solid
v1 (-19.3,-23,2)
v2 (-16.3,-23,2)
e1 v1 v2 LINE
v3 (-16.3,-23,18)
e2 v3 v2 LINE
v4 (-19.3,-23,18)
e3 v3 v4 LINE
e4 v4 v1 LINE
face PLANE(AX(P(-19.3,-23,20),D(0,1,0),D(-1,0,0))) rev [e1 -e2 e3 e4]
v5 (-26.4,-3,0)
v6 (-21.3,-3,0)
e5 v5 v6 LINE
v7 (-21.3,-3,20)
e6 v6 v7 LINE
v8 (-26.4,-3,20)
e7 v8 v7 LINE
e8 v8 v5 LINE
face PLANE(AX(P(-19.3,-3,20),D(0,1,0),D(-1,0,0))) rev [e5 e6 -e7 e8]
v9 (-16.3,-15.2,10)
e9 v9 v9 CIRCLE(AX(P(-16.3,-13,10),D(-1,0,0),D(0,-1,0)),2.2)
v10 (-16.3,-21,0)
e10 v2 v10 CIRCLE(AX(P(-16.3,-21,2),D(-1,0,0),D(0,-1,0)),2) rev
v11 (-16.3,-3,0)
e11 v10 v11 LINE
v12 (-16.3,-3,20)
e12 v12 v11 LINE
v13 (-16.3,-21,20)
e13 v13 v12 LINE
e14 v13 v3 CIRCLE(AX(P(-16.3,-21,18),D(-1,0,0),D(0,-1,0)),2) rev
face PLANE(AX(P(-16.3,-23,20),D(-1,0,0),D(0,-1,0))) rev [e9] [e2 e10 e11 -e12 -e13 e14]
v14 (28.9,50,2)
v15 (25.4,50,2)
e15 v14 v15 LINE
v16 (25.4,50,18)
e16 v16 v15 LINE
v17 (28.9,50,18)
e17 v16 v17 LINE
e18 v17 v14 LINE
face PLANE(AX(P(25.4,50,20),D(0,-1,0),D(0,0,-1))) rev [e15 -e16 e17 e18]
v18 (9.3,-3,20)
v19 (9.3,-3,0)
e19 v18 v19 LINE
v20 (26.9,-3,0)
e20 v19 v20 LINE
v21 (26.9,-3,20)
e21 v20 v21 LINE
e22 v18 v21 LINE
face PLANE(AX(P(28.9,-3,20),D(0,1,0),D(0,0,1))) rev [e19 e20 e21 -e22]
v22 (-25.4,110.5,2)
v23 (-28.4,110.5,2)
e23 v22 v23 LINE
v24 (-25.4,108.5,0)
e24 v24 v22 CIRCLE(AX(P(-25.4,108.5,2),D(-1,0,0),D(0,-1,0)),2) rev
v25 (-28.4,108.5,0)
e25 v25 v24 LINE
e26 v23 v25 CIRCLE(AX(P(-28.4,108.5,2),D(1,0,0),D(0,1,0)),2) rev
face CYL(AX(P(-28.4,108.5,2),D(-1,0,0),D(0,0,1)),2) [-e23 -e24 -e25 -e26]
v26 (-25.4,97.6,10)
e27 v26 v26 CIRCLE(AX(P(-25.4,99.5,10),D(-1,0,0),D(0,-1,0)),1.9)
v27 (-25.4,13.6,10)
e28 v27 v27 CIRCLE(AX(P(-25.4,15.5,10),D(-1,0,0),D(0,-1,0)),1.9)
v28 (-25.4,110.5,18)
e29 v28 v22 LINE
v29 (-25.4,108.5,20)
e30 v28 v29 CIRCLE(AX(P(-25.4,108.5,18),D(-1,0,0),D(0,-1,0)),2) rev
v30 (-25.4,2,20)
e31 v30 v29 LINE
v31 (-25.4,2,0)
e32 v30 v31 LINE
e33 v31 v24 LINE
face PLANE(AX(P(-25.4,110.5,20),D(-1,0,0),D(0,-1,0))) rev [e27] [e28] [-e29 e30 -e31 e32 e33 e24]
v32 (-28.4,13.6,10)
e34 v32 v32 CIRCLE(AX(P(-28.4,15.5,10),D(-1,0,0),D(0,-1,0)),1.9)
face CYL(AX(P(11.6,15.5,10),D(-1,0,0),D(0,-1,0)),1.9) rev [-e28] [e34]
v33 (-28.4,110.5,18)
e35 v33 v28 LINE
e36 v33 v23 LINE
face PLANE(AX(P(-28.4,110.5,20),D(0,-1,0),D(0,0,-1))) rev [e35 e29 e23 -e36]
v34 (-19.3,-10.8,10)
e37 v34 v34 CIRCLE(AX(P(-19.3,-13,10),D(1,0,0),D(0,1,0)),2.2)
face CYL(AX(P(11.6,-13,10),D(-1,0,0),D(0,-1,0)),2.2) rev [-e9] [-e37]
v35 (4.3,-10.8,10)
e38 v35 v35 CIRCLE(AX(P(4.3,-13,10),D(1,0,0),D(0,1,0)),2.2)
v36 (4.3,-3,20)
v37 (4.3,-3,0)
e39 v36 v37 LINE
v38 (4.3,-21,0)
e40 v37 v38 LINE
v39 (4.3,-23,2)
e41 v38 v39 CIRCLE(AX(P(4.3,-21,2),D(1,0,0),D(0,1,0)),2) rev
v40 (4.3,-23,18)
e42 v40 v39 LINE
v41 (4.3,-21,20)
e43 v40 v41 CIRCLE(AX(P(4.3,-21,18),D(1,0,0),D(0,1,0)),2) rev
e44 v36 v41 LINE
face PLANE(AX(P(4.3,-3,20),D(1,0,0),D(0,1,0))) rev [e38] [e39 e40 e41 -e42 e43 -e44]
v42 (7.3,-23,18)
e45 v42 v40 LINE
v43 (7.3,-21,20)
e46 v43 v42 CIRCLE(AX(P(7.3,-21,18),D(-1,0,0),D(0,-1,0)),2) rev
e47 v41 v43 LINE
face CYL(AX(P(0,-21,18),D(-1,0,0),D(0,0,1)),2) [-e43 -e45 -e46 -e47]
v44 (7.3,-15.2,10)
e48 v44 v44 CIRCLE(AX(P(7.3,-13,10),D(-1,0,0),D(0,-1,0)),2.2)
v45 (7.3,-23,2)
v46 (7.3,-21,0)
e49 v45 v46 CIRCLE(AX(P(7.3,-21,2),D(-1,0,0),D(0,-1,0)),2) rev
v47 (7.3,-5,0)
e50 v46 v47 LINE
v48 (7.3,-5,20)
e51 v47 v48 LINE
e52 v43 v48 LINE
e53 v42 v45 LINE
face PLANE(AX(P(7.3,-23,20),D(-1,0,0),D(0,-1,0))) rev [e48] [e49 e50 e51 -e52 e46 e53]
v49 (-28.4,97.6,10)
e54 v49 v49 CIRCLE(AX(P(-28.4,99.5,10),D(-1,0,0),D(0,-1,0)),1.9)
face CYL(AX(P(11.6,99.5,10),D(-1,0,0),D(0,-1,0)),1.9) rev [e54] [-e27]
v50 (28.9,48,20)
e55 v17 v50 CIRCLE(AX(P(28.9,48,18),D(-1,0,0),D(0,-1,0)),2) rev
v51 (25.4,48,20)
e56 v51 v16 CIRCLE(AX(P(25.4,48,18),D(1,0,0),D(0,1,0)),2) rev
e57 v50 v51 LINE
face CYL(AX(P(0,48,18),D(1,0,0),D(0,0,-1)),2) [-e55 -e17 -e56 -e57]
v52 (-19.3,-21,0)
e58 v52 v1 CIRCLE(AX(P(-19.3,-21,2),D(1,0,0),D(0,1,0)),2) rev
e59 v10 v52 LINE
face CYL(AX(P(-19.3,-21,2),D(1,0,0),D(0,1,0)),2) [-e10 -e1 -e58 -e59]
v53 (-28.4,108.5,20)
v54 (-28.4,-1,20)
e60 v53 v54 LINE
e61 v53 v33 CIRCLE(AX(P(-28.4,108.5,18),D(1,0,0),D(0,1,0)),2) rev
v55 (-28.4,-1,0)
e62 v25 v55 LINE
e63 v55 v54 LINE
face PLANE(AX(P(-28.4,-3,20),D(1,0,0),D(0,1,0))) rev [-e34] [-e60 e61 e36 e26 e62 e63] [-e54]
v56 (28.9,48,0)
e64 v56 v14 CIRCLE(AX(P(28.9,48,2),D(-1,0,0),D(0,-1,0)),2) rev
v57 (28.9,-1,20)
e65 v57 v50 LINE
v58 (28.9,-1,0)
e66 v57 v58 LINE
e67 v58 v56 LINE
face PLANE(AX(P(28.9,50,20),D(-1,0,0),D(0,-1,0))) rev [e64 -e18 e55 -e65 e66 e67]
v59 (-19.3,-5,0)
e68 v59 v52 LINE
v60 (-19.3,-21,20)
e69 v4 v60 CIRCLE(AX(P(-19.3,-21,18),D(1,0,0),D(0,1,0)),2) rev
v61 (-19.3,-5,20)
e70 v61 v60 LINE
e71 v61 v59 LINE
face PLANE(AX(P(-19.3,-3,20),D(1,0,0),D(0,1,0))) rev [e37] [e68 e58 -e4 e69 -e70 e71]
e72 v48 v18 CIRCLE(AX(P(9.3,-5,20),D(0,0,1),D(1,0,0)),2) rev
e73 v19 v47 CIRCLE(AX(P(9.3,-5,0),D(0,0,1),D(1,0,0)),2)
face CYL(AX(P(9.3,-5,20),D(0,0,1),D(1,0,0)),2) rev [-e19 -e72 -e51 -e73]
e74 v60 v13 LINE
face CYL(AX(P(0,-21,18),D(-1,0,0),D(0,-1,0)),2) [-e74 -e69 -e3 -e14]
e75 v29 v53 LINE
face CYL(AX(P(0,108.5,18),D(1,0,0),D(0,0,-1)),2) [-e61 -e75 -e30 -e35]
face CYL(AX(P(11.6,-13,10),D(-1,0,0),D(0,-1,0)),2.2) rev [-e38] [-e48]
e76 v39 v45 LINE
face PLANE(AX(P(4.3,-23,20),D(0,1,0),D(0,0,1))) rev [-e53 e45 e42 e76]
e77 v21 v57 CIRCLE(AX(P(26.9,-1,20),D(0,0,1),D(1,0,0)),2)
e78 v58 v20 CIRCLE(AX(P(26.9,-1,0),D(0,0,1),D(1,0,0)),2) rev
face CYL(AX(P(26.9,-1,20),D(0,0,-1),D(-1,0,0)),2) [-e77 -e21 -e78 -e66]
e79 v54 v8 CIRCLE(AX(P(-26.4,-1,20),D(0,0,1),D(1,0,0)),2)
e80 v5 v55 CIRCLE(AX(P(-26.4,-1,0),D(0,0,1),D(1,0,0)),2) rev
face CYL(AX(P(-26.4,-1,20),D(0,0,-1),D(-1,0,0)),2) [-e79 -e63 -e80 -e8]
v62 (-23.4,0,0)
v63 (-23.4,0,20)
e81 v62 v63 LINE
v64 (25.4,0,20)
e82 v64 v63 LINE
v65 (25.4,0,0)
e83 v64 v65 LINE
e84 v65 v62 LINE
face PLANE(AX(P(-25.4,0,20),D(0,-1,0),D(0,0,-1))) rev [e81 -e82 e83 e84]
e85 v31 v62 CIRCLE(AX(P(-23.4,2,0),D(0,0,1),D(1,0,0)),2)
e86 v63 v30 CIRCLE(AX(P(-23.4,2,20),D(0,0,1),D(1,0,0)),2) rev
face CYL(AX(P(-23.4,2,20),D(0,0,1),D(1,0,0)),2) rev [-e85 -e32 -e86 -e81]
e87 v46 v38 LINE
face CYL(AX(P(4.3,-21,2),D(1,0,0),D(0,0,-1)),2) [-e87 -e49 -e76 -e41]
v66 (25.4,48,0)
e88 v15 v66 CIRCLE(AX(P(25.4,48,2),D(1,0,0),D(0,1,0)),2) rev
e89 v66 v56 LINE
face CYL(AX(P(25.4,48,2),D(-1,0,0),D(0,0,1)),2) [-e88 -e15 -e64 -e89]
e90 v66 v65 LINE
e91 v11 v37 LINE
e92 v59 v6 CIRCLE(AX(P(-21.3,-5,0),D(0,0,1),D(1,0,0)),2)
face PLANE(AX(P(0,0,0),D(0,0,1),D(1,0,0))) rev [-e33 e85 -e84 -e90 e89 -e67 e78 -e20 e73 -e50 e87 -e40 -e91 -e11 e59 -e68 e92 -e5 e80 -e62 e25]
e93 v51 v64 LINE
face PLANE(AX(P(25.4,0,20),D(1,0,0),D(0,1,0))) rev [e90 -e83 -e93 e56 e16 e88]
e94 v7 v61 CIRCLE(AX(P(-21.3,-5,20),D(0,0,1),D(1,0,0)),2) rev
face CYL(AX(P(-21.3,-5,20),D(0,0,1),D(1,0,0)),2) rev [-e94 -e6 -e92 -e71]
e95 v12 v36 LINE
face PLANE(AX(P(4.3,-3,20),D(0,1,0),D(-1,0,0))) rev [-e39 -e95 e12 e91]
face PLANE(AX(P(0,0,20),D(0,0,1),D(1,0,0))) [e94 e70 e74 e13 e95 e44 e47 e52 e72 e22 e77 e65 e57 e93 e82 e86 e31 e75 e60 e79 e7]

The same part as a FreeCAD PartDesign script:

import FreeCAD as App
import Part
import Sketcher


def edges_at(feature, points):
    """Names of the edges that pass closest to the given points."""
    edges = feature.Shape.Edges
    near = lambda p: min(range(len(edges)), key=lambda i: edges[i].distToShape(Part.Vertex(*p))[0])
    return sorted({f"Edge{near(p) + 1}" for p in points})

doc = App.newDocument("Part")
body = doc.addObject("PartDesign::Body", "Body")

# Sketch on XY plane
sketch1 = body.newObject("Sketcher::SketchObject", "Sketch")
sketch1.AttachmentSupport = (doc.getObject("XY_Plane"), [""])
sketch1.MapMode = "FlatFace"
sketch1.addGeometry([
    Part.LineSegment(App.Vector(25.4, 0, 0), App.Vector(-25.4, 0, 0)),  # 0
    Part.LineSegment(App.Vector(-25.4, 0, 0), App.Vector(-25.4, 110.5, 0)),  # 1
    Part.LineSegment(App.Vector(-25.4, 110.5, 0), App.Vector(-28.4, 110.5, 0)),  # 2
    Part.LineSegment(App.Vector(-28.4, 110.5, 0), App.Vector(-28.4, -3, 0)),  # 3
    Part.LineSegment(App.Vector(-28.4, -3, 0), App.Vector(-19.3, -3, 0)),  # 4
    Part.LineSegment(App.Vector(-19.3, -3, 0), App.Vector(-19.3, -23, 0)),  # 5
    Part.LineSegment(App.Vector(-19.3, -23, 0), App.Vector(-16.3, -23, 0)),  # 6
    Part.LineSegment(App.Vector(-16.3, -23, 0), App.Vector(-16.3, -3, 0)),  # 7
    Part.LineSegment(App.Vector(-16.3, -3, 0), App.Vector(4.3, -3, 0)),  # 8
    Part.LineSegment(App.Vector(4.3, -3, 0), App.Vector(4.3, -23, 0)),  # 9
    Part.LineSegment(App.Vector(4.3, -23, 0), App.Vector(7.3, -23, 0)),  # 10
    Part.LineSegment(App.Vector(7.3, -23, 0), App.Vector(7.3, -3, 0)),  # 11
    Part.LineSegment(App.Vector(7.3, -3, 0), App.Vector(28.9, -3, 0)),  # 12
    Part.LineSegment(App.Vector(28.9, -3, 0), App.Vector(28.9, 50, 0)),  # 13
    Part.LineSegment(App.Vector(28.9, 50, 0), App.Vector(25.4, 50, 0)),  # 14
    Part.LineSegment(App.Vector(25.4, 50, 0), App.Vector(25.4, 0, 0)),  # 15
], False)
sketch1.addConstraint([
    Sketcher.Constraint("Coincident", 0, 2, 1, 1),
    Sketcher.Constraint("Coincident", 1, 2, 2, 1),
    Sketcher.Constraint("Coincident", 2, 2, 3, 1),
    Sketcher.Constraint("Coincident", 3, 2, 4, 1),
    Sketcher.Constraint("Coincident", 4, 2, 5, 1),
    Sketcher.Constraint("Coincident", 5, 2, 6, 1),
    Sketcher.Constraint("Coincident", 6, 2, 7, 1),
    Sketcher.Constraint("Coincident", 7, 2, 8, 1),
    Sketcher.Constraint("Coincident", 8, 2, 9, 1),
    Sketcher.Constraint("Coincident", 9, 2, 10, 1),
    Sketcher.Constraint("Coincident", 10, 2, 11, 1),
    Sketcher.Constraint("Coincident", 11, 2, 12, 1),
    Sketcher.Constraint("Coincident", 12, 2, 13, 1),
    Sketcher.Constraint("Coincident", 13, 2, 14, 1),
    Sketcher.Constraint("Coincident", 14, 2, 15, 1),
    Sketcher.Constraint("Coincident", 15, 2, 0, 1),
    Sketcher.Constraint("Horizontal", 0),
    Sketcher.Constraint("Vertical", 1),
    Sketcher.Constraint("Horizontal", 2),
    Sketcher.Constraint("Vertical", 3),
    Sketcher.Constraint("Horizontal", 4),
    Sketcher.Constraint("Vertical", 5),
    Sketcher.Constraint("Horizontal", 6),
    Sketcher.Constraint("Vertical", 7),
    Sketcher.Constraint("Horizontal", 8),
    Sketcher.Constraint("Vertical", 9),
    Sketcher.Constraint("Horizontal", 10),
    Sketcher.Constraint("Vertical", 11),
    Sketcher.Constraint("Horizontal", 12),
    Sketcher.Constraint("Vertical", 13),
    Sketcher.Constraint("Horizontal", 14),
    Sketcher.Constraint("Vertical", 15),
    Sketcher.Constraint("Symmetric", 0, 2, 15, 2, -1, 1),
    Sketcher.Constraint("Horizontal", 4, 2, 7, 2),
    Sketcher.Constraint("Horizontal", 6, 2, 9, 2),
    Sketcher.Constraint("Horizontal", 8, 2, 11, 2),
    Sketcher.Constraint("Equal", 2, 6),
    Sketcher.Constraint("Equal", 6, 10),
    Sketcher.Constraint("DistanceX", 2, 2, 2, 1, 3.0),
    Sketcher.Constraint("DistanceY", 5, 2, 5, 1, 20.0),
    Sketcher.Constraint("DistanceY", 13, 1, 13, 2, 53.0),
    Sketcher.Constraint("DistanceY", 15, 2, 15, 1, 50.0),
    Sketcher.Constraint("DistanceX", 0, 2, 0, 1, 50.8),
    Sketcher.Constraint("DistanceX", 4, 1, 4, 2, 9.1),
    Sketcher.Constraint("DistanceX", 8, 1, 8, 2, 20.6),
    Sketcher.Constraint("DistanceX", 12, 1, 12, 2, 21.6),
    Sketcher.Constraint("DistanceY", 1, 1, 1, 2, 110.5),
])
pad1 = body.newObject("PartDesign::Pad", "Pad")
pad1.Profile = sketch1
pad1.Length = 20
doc.recompute()

fillet = body.newObject("PartDesign::Fillet", "Fillet")
fillet.Base = (pad1, edges_at(pad1, [
    (27.15, 50, 0),
    (5.8, -23, 0),
    (-17.8, -23, 0),
    (-17.8, -23, 20),
    (-26.9, 110.5, 0),
    (-25.4, 0, 10),
    (28.9, -3, 10),
    (7.3, -3, 10),
    (-19.3, -3, 10),
    (-28.4, -3, 10),
    (5.8, -23, 20),
    (27.15, 50, 20),
    (-26.9, 110.5, 20),
]))
fillet.Radius = 2

# Sketch on YZ plane
sketch2 = body.newObject("Sketcher::SketchObject", "Sketch001")
sketch2.AttachmentSupport = (doc.getObject("YZ_Plane"), [""])
sketch2.MapMode = "FlatFace"
sketch2.AttachmentOffset = App.Placement(App.Vector(0, 0, -28.4), App.Rotation())
sketch2.addGeometry([
    Part.Circle(App.Vector(99.5, 10, 0), App.Vector(0, 0, 1), 1.9),
    Part.Circle(App.Vector(15.5, 10, 0), App.Vector(0, 0, 1), 1.9),
    Part.Circle(App.Vector(-13, 10, 0), App.Vector(0, 0, 1), 2.2),
], False)
sketch2.addConstraint([
    Sketcher.Constraint("Equal", 0, 1),
    Sketcher.Constraint("Horizontal", 0, 3, 1, 3),
    Sketcher.Constraint("Horizontal", 1, 3, 2, 3),
    Sketcher.Constraint("Diameter", 0, 3.8),
    Sketcher.Constraint("Diameter", 2, 4.4),
    Sketcher.Constraint("DistanceY", -1, 1, 0, 3, 10.0),
    Sketcher.Constraint("DistanceX", 2, 3, -1, 1, 13.0),
    Sketcher.Constraint("DistanceX", 1, 3, 0, 3, 84.0),
    Sketcher.Constraint("DistanceX", -1, 1, 0, 3, 99.5),
])
pocket1 = body.newObject("PartDesign::Pocket", "Pocket")
pocket1.Profile = sketch2
pocket1.Length = 40
pocket1.Reversed = True

doc.recompute()
